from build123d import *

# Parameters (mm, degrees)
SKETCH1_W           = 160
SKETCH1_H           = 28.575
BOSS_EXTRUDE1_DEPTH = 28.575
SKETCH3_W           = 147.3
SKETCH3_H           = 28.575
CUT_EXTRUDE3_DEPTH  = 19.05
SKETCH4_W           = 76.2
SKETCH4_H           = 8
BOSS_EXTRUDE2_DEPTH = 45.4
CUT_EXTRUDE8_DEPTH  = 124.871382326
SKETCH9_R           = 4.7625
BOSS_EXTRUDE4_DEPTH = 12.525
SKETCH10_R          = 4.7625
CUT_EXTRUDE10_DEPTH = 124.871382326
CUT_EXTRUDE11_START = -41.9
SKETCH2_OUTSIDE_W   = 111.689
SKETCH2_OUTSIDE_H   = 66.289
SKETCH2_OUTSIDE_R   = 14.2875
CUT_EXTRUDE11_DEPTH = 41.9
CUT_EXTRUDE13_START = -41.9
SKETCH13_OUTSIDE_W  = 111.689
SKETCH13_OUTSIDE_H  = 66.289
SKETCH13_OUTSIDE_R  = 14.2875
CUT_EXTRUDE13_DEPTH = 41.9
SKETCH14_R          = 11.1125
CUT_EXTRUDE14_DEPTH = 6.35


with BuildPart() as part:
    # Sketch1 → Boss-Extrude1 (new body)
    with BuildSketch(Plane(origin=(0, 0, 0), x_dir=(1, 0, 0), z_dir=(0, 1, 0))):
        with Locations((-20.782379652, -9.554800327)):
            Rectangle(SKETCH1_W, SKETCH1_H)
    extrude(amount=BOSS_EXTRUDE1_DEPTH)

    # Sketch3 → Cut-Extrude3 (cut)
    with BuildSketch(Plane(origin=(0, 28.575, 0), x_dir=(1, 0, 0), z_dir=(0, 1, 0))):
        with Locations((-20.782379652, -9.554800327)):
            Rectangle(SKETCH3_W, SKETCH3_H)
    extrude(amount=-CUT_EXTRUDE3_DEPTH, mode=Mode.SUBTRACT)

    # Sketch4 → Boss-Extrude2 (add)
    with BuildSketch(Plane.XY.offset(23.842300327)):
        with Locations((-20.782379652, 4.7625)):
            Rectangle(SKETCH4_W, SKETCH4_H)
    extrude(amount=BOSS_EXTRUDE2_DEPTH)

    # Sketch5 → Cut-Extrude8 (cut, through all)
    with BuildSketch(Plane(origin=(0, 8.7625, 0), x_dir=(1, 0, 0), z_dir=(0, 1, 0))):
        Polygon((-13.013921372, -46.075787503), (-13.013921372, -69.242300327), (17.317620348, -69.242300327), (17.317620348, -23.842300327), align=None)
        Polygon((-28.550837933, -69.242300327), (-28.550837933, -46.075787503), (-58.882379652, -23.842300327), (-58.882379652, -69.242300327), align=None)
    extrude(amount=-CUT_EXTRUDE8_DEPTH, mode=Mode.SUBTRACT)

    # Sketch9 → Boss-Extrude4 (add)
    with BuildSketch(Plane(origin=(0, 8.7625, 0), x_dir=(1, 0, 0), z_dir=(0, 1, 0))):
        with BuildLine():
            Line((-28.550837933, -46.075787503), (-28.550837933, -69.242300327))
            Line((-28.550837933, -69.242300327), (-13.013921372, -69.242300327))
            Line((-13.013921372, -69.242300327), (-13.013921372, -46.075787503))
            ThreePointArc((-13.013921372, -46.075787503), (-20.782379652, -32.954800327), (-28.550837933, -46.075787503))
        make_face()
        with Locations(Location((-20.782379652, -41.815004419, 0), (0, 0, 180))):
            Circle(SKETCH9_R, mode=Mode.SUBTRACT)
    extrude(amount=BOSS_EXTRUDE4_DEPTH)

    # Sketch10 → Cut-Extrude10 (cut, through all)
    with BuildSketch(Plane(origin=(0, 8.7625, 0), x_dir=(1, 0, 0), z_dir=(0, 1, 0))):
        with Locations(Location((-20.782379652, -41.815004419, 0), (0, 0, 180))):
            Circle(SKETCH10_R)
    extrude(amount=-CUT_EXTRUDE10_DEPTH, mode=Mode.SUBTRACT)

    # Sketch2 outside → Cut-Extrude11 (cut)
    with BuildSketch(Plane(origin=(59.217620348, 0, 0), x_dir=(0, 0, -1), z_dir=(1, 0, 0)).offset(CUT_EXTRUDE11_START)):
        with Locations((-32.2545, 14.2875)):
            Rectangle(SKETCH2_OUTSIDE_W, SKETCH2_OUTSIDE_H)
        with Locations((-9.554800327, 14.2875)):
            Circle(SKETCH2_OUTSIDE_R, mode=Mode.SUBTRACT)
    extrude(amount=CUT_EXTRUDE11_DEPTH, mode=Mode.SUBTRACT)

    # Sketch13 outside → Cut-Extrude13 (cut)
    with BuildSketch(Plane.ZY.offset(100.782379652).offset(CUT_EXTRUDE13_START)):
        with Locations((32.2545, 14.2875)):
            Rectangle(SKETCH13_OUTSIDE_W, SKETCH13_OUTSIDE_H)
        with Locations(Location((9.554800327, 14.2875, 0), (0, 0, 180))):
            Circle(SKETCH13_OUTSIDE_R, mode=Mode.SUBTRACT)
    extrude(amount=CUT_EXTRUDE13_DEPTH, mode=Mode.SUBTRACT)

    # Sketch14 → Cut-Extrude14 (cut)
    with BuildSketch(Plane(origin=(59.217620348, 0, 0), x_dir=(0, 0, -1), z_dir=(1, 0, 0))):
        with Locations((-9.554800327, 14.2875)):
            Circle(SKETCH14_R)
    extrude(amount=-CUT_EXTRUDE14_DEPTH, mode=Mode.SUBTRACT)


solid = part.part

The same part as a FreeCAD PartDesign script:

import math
import FreeCAD as App
import Part
import Sketcher
Q = App.Units.Quantity


def add_polygon(sketch, points):
    """Adds a closed chain of lines whose ends are joined by coincident constraints."""
    first, n = sketch.GeometryCount, len(points)
    for a, b in zip(points, points[1:] + points[:1]):
        sketch.addGeometry(Part.LineSegment(App.Vector(*a, 0), App.Vector(*b, 0)), False)
    for i in range(n):
        sketch.addConstraint(Sketcher.Constraint("Coincident", first + i, 2, first + (i + 1) % n, 1))

doc = App.newDocument("Part")
params = doc.addObject("Spreadsheet::Sheet", "Params")
for row, (alias, value) in enumerate([
    ("sketch1_height", "1.125 in"),
    ("pad1_length", "1.125 in"),
    ("sketch2_height", "1.125 in"),
    ("pocket1_length", "0.75 in"),
    ("sketch3_width", "3 in"),
    ("pad2_length", "45.4 mm"),
    ("sketch5_diameter", "0.375 in"),
    ("pad3_length", "12.525 mm"),
    ("sketch6_diameter", "0.375 in"),
    ("sketch7_diameter", "1.125 in"),
    ("pocket4_length", "41.9 mm"),
    ("sketch8_diameter", "1.125 in"),
    ("pocket5_length", "41.9 mm"),
    ("sketch9_diameter", "0.875 in"),
    ("pocket6_length", "0.25 in"),
], start=1):
    params.set(f"A{row}", alias)
    params.set(f"B{row}", "=" + value)
    params.setAlias(f"B{row}", alias)

body = doc.addObject("PartDesign::Body", "Body")

sketch1 = doc.addObject("Sketcher::SketchObject", "Sketch")
body.addObject(sketch1)
sketch1.AttachmentSupport = (doc.XZ_Plane, [""])
sketch1.MapMode = "FlatFace"
add_polygon(sketch1, [(-101, -5), (-101, 24), (59, 24), (59, -5)])
sketch1.addConstraint([
    Sketcher.Constraint("Vertical", 0),
    Sketcher.Constraint("Horizontal", 1),
    Sketcher.Constraint("Vertical", 2),
    Sketcher.Constraint("Horizontal", 3),
    Sketcher.Constraint("DistanceY", 0, 1, 0, 2, Q("1.125 in")),
    Sketcher.Constraint("DistanceX", 1, 1, 1, 2, Q("160 mm")),
    Sketcher.Constraint("DistanceY", -1, 1, 0, 2, Q("23.8423 mm")),
    Sketcher.Constraint("DistanceX", 0, 2, -1, 1, Q("100.78238 mm")),
])
sketch1.setExpression("Constraints[8]", "Params.sketch1_height")
pad1 = doc.addObject("PartDesign::Pad", "Pad")
body.addObject(pad1)
pad1.Profile = sketch1
pad1.setExpression("Length", "Params.pad1_length")
pad1.Reversed = True

sketch2 = doc.addObject("Sketcher::SketchObject", "Sketch001")
body.addObject(sketch2)
sketch2.AttachmentSupport = (doc.XZ_Plane, [""])
sketch2.MapMode = "FlatFace"
sketch2.AttachmentOffset = App.Placement(App.Vector(0, 0, -1.125 * 25.4), App.Rotation())
add_polygon(sketch2, [(-94, -5), (-94, 24), (53, 24), (53, -5)])
sketch2.addConstraint([
    Sketcher.Constraint("Vertical", 0),
    Sketcher.Constraint("Horizontal", 1),
    Sketcher.Constraint("Vertical", 2),
    Sketcher.Constraint("Horizontal", 3),
    Sketcher.Constraint("DistanceY", 0, 1, 0, 2, Q("1.125 in")),
    Sketcher.Constraint("DistanceX", 1, 1, 1, 2, Q("147.3 mm")),
    Sketcher.Constraint("DistanceY", -1, 1, 0, 2, Q("23.8423 mm")),
    Sketcher.Constraint("DistanceX", 0, 2, -1, 1, Q("94.43238 mm")),
])
sketch2.setExpression("Constraints[8]", "Params.sketch2_height")
pocket1 = doc.addObject("PartDesign::Pocket", "Pocket")
body.addObject(pocket1)
pocket1.Profile = sketch2
pocket1.setExpression("Length", "Params.pocket1_length")
pocket1.Reversed = True

sketch3 = doc.addObject("Sketcher::SketchObject", "Sketch002")
body.addObject(sketch3)
sketch3.AttachmentSupport = (doc.XY_Plane, [""])
sketch3.MapMode = "FlatFace"
sketch3.AttachmentOffset = App.Placement(App.Vector(0, 0, 23.8423), App.Rotation())
add_polygon(sketch3, [(-59, 9), (-59, 1), (17, 1), (17, 9)])
sketch3.addConstraint([
    Sketcher.Constraint("Vertical", 0),
    Sketcher.Constraint("Horizontal", 1),
    Sketcher.Constraint("Vertical", 2),
    Sketcher.Constraint("Horizontal", 3),
    Sketcher.Constraint("DistanceX", 1, 1, 1, 2, Q("3 in")),
    Sketcher.Constraint("DistanceY", 0, 2, 0, 1, Q("8 mm")),
    Sketcher.Constraint("DistanceY", -1, 1, 0, 2, Q("0.7625 mm")),
    Sketcher.Constraint("DistanceX", 0, 2, -1, 1, Q("58.88238 mm")),
])
sketch3.setExpression("Constraints[8]", "Params.sketch3_width")
pad2 = doc.addObject("PartDesign::Pad", "Pad001")
body.addObject(pad2)
pad2.Profile = sketch3
pad2.setExpression("Length", "Params.pad2_length")

sketch4 = doc.addObject("Sketcher::SketchObject", "Sketch003")
body.addObject(sketch4)
sketch4.AttachmentSupport = (doc.XZ_Plane, [""])
sketch4.MapMode = "FlatFace"
sketch4.AttachmentOffset = App.Placement(App.Vector(0, 0, -8.7625), App.Rotation())
add_polygon(sketch4, [(-13, 46), (-13, 69), (17, 69), (17, 24)])
add_polygon(sketch4, [(-29, 69), (-29, 46), (-59, 24), (-59, 69)])
sketch4.addConstraint([
    Sketcher.Constraint("Vertical", 0),
    Sketcher.Constraint("Horizontal", 1),
    Sketcher.Constraint("Vertical", 2),
    Sketcher.Constraint("Vertical", 4),
    Sketcher.Constraint("Vertical", 6),
    Sketcher.Constraint("Horizontal", 7),
    Sketcher.Constraint("Horizontal", 3, 2, 4, 2),
    Sketcher.Constraint("Horizontal", 2, 2, 5, 2),
    Sketcher.Constraint("Horizontal", 1, 2, 6, 2),
    Sketcher.Constraint("Equal", 1, 7),
    Sketcher.Constraint("DistanceX", 5, 2, 2, 2, Q("3 in")),
    Sketcher.Constraint("DistanceY", 2, 2, 2, 1, Q("45.4 mm")),
    Sketcher.Constraint("DistanceX", 1, 1, 1, 2, Q("30.331542 mm")),
    Sketcher.Constraint("DistanceY", -1, 1, 0, 2, Q("69.2423 mm")),
    Sketcher.Constraint("DistanceY", 0, 1, 0, 2, Q("23.166513 mm")),
    Sketcher.Constraint("DistanceX", 0, 2, -1, 1, Q("13.013921 mm")),
])
pocket2 = doc.addObject("PartDesign::Pocket", "Pocket001")
body.addObject(pocket2)
pocket2.Profile = sketch4
pocket2.Type = "ThroughAll"
pocket2.Reversed = True

sketch5 = doc.addObject("Sketcher::SketchObject", "Sketch004")
body.addObject(sketch5)
sketch5.AttachmentSupport = (doc.XZ_Plane, [""])
sketch5.MapMode = "FlatFace"
sketch5.AttachmentOffset = App.Placement(App.Vector(0, 0, -8.7625), App.Rotation())
sketch5.addGeometry([
    Part.LineSegment(App.Vector(-28.6, 46.1, 0), App.Vector(-28.6, 69.2, 0)),
    Part.LineSegment(App.Vector(-28.6, 69.2, 0), App.Vector(-13, 69.2, 0)),
    Part.LineSegment(App.Vector(-13, 69.2, 0), App.Vector(-13, 46.1, 0)),
    Part.ArcOfCircle(Part.Circle(App.Vector(-20.8, 41.8, 0), App.Vector(0, 0, 1), 8.9), math.radians(151), math.radians(389)),
    Part.Circle(App.Vector(-20.8, 41.8, 0), App.Vector(0, 0, 1), 4.8),
], False)
sketch5.addConstraint([
    Sketcher.Constraint("Coincident", 0, 2, 1, 1),
    Sketcher.Constraint("Coincident", 1, 2, 2, 1),
    Sketcher.Constraint("Coincident", 2, 2, 3, 2),
    Sketcher.Constraint("Coincident", 3, 1, 0, 1),
    Sketcher.Constraint("Vertical", 0),
    Sketcher.Constraint("Horizontal", 1),
    Sketcher.Constraint("Vertical", 2),
    Sketcher.Constraint("Coincident", 4, 3, 3, 3),
    Sketcher.Constraint("Horizontal", 2, 2, 3, 1),
    Sketcher.Constraint("Diameter", 4, Q("0.375 in")),
    Sketcher.Constraint("Radius", 3, Q("8.860204 mm")),
    Sketcher.Constraint("DistanceY", -1, 1, 0, 2, Q("69.2423 mm")),
    Sketcher.Constraint("DistanceX", 1, 1, 1, 2, Q("15.536917 mm")),
    Sketcher.Constraint("DistanceY", 0, 1, 0, 2, Q("23.166513 mm")),
    Sketcher.Constraint("DistanceX", 3, 3, -1, 1, Q("20.78238 mm")),
])
sketch5.setExpression("Constraints[9]", "Params.sketch5_diameter")
pad3 = doc.addObject("PartDesign::Pad", "Pad002")
body.addObject(pad3)
pad3.Profile = sketch5
pad3.setExpression("Length", "Params.pad3_length")
pad3.Reversed = True

sketch6 = doc.addObject("Sketcher::SketchObject", "Sketch005")
body.addObject(sketch6)
sketch6.AttachmentSupport = (doc.XZ_Plane, [""])
sketch6.MapMode = "FlatFace"
sketch6.AttachmentOffset = App.Placement(App.Vector(0, 0, -8.7625), App.Rotation())
sketch6.addGeometry(Part.Circle(App.Vector(-20.8, 41.8, 0), App.Vector(0, 0, 1), 4.8), False)
sketch6.addConstraint([
    Sketcher.Constraint("Diameter", 0, Q("0.375 in")),
    Sketcher.Constraint("DistanceX", 0, 3, -1, 1, Q("20.78238 mm")),
    Sketcher.Constraint("DistanceY", -1, 1, 0, 3, Q("41.815004 mm")),
])
sketch6.setExpression("Constraints[0]", "Params.sketch6_diameter")
pocket3 = doc.addObject("PartDesign::Pocket", "Pocket002")
body.addObject(pocket3)
pocket3.Profile = sketch6
pocket3.Type = "ThroughAll"
pocket3.Reversed = True

sketch7 = doc.addObject("Sketcher::SketchObject", "Sketch006")
body.addObject(sketch7)
sketch7.AttachmentSupport = (doc.YZ_Plane, [""])
sketch7.MapMode = "FlatFace"
sketch7.AttachmentOffset = App.Placement(App.Vector(0, 0, 17.31762), App.Rotation())
add_polygon(sketch7, [(47, 88), (-19, 88), (-19, -24), (47, -24)])
sketch7.addGeometry(Part.Circle(App.Vector(14, 10, 0), App.Vector(0, 0, 1), 14), False)
sketch7.addConstraint([
    Sketcher.Constraint("Horizontal", 0),
    Sketcher.Constraint("Vertical", 1),
    Sketcher.Constraint("Horizontal", 2),
    Sketcher.Constraint("Vertical", 3),
    Sketcher.Constraint("Diameter", 4, Q("1.125 in")),
    Sketcher.Constraint("DistanceX", -1, 1, 4, 3, Q("0.5625 in")),
    Sketcher.Constraint("DistanceX", 0, 2, 0, 1, Q("66.289 mm")),
    Sketcher.Constraint("DistanceY", 1, 2, 1, 1, Q("111.689 mm")),
    Sketcher.Constraint("DistanceY", -1, 1, 4, 3, Q("9.5548 mm")),
    Sketcher.Constraint("DistanceX", 0, 2, -1, 1, Q("18.857 mm")),
    Sketcher.Constraint("DistanceY", -1, 1, 0, 2, Q("88.099 mm")),
])
sketch7.setExpression("Constraints[8]", "Params.sketch7_diameter")
pocket4 = doc.addObject("PartDesign::Pocket", "Pocket003")
body.addObject(pocket4)
pocket4.Profile = sketch7
pocket4.setExpression("Length", "Params.pocket4_length")
pocket4.Reversed = True

sketch8 = doc.addObject("Sketcher::SketchObject", "Sketch007")
body.addObject(sketch8)
sketch8.AttachmentSupport = (doc.YZ_Plane, [""])
sketch8.MapMode = "FlatFace"
sketch8.AttachmentOffset = App.Placement(App.Vector(0, 0, -58.88238), App.Rotation())
add_polygon(sketch8, [(47, -24), (-19, -24), (-19, 88), (47, 88)])
sketch8.addGeometry(Part.Circle(App.Vector(14, 10, 0), App.Vector(0, 0, 1), 14), False)
sketch8.addConstraint([
    Sketcher.Constraint("Horizontal", 0),
    Sketcher.Constraint("Vertical", 1),
    Sketcher.Constraint("Horizontal", 2),
    Sketcher.Constraint("Vertical", 3),
    Sketcher.Constraint("Diameter", 4, Q("1.125 in")),
    Sketcher.Constraint("DistanceX", -1, 1, 4, 3, Q("0.5625 in")),
    Sketcher.Constraint("DistanceX", 0, 2, 0, 1, Q("66.289 mm")),
    Sketcher.Constraint("DistanceY", 1, 1, 1, 2, Q("111.689 mm")),
    Sketcher.Constraint("DistanceY", -1, 1, 4, 3, Q("9.5548 mm")),
    Sketcher.Constraint("DistanceX", 0, 2, -1, 1, Q("18.857 mm")),
    Sketcher.Constraint("DistanceY", 0, 2, -1, 1, Q("23.59 mm")),
])
sketch8.setExpression("Constraints[8]", "Params.sketch8_diameter")
pocket5 = doc.addObject("PartDesign::Pocket", "Pocket004")
body.addObject(pocket5)
pocket5.Profile = sketch8
pocket5.setExpression("Length", "Params.pocket5_length")

sketch9 = doc.addObject("Sketcher::SketchObject", "Sketch008")
body.addObject(sketch9)
sketch9.AttachmentSupport = (doc.YZ_Plane, [""])
sketch9.MapMode = "FlatFace"
sketch9.AttachmentOffset = App.Placement(App.Vector(0, 0, 59.21762), App.Rotation())
sketch9.addGeometry(Part.Circle(App.Vector(14, 10, 0), App.Vector(0, 0, 1), 11), False)
sketch9.addConstraint([
    Sketcher.Constraint("Diameter", 0, Q("0.875 in")),
    Sketcher.Constraint("DistanceX", -1, 1, 0, 3, Q("0.5625 in")),
    Sketcher.Constraint("DistanceY", -1, 1, 0, 3, Q("9.5548 mm")),
])
sketch9.setExpression("Constraints[0]", "Params.sketch9_diameter")
pocket6 = doc.addObject("PartDesign::Pocket", "Pocket005")
body.addObject(pocket6)
pocket6.Profile = sketch9
pocket6.setExpression("Length", "Params.pocket6_length")

doc.recompute()
